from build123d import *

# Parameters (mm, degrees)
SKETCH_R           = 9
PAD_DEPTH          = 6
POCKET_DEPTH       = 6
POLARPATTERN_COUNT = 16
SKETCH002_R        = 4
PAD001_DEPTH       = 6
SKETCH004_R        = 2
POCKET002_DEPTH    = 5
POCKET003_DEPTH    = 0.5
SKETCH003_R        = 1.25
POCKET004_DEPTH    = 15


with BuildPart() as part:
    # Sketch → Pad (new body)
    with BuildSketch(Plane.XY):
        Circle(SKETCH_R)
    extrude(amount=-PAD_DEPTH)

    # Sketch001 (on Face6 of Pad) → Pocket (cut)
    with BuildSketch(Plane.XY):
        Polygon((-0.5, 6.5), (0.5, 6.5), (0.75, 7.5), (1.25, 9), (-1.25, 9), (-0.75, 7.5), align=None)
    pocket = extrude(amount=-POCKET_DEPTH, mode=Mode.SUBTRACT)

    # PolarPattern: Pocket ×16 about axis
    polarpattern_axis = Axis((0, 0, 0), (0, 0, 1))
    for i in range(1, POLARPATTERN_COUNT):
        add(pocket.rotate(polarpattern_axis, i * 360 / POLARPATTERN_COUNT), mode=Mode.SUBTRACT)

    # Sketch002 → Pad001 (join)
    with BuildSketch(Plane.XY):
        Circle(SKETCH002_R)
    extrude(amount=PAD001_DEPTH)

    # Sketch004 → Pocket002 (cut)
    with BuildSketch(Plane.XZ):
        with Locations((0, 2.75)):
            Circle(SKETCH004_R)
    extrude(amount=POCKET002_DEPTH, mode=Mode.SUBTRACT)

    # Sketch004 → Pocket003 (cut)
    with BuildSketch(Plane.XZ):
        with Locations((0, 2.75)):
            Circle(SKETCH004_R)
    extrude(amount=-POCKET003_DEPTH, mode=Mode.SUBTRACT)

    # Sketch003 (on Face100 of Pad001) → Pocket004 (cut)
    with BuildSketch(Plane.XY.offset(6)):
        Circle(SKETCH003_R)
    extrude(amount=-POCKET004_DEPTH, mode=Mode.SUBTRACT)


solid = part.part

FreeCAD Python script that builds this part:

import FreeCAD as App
import Part
import Sketcher

V = App.Vector
Q = App.Units.Quantity

doc = App.newDocument("Part")
params = doc.addObject("Spreadsheet::Sheet", "Params")
for row, (alias, value) in enumerate([
    ("sketch1_diameter", "18 mm"),
    ("pad1_length", "6 mm"),
    ("sketch2_width", "1 mm"),
    ("sketch2_width2", "2.5 mm"),
    ("pocket1_length", "6 mm"),
    ("sketch3_diameter", "8 mm"),
    ("pad2_length", "6 mm"),
    ("sketch4_diameter", "4 mm"),
    ("pocket2_length", "5 mm"),
    ("sketch5_diameter", "4 mm"),
    ("pocket3_length", "0.5 mm"),
    ("sketch6_diameter", "2.5 mm"),
    ("pocket4_length", "15 mm"),
], start=1):
    params.set(f"A{row}", alias)
    params.set(f"B{row}", "=" + value)
    params.setAlias(f"B{row}", alias)

body = doc.addObject("PartDesign::Body", "Body")

sketch1 = doc.addObject("Sketcher::SketchObject", "Sketch")
body.addObject(sketch1)
sketch1.AttachmentSupport = (doc.XY_Plane, [""])
sketch1.MapMode = "FlatFace"
sketch1.addGeometry(Part.Circle(V(0, 0, 0), V(0, 0, 1), 9), False)
sketch1.addConstraint([
    Sketcher.Constraint("Coincident", 0, 3, -1, 1),
    Sketcher.Constraint("Diameter", 0, Q("18 mm")),
])
sketch1.setExpression("Constraints[1]", "Params.sketch1_diameter")
pad1 = doc.addObject("PartDesign::Pad", "Pad")
body.addObject(pad1)
pad1.Profile = sketch1
pad1.setExpression("Length", "Params.pad1_length")
pad1.Reversed = True

sketch2 = doc.addObject("Sketcher::SketchObject", "Sketch001")
body.addObject(sketch2)
sketch2.AttachmentSupport = (doc.XY_Plane, [""])
sketch2.MapMode = "FlatFace"
sketch2.addGeometry([
    Part.LineSegment(V(-0.5, 6.5, 0), V(0.5, 6.5, 0)),
    Part.LineSegment(V(0.5, 6.5, 0), V(0.8, 7.5, 0)),
    Part.LineSegment(V(0.8, 7.5, 0), V(1.2, 9, 0)),
    Part.LineSegment(V(1.2, 9, 0), V(-1.2, 9, 0)),
    Part.LineSegment(V(-1.2, 9, 0), V(-0.8, 7.5, 0)),
    Part.LineSegment(V(-0.8, 7.5, 0), V(-0.5, 6.5, 0)),
], False)
sketch2.addConstraint([
    Sketcher.Constraint("Coincident", 0, 2, 1, 1),
    Sketcher.Constraint("Coincident", 1, 2, 2, 1),
    Sketcher.Constraint("Coincident", 2, 2, 3, 1),
    Sketcher.Constraint("Coincident", 3, 2, 4, 1),
    Sketcher.Constraint("Coincident", 4, 2, 5, 1),
    Sketcher.Constraint("Coincident", 5, 2, 0, 1),
    Sketcher.Constraint("Horizontal", 0),
    Sketcher.Constraint("Horizontal", 3),
    Sketcher.Constraint("Symmetric", 1, 2, 4, 2, -2),
    Sketcher.Constraint("Equal", 2, 4),
    Sketcher.Constraint("Equal", 1, 5),
    Sketcher.Constraint("DistanceX", 0, 1, 0, 2, Q("1 mm")),
    Sketcher.Constraint("DistanceX", 3, 2, 3, 1, Q("2.5 mm")),
    Sketcher.Constraint("DistanceY", -1, 1, 2, 2, Q("9 mm")),
    Sketcher.Constraint("DistanceY", 0, 2, 1, 2, Q("1 mm")),
    Sketcher.Constraint("DistanceX", 3, 2, 1, 2, Q("2 mm")),
    Sketcher.Constraint("DistanceY", -1, 1, 0, 2, Q("6.5 mm")),
])
sketch2.setExpression("Constraints[11]", "Params.sketch2_width")
sketch2.setExpression("Constraints[12]", "Params.sketch2_width2")
pocket1 = doc.addObject("PartDesign::Pocket", "Pocket")
body.addObject(pocket1)
pocket1.Profile = sketch2
pocket1.setExpression("Length", "Params.pocket1_length")
doc.recompute()

polarpattern = doc.addObject("PartDesign::PolarPattern", "PolarPattern")
body.addObject(polarpattern)
polarpattern.Originals = [pocket1]
polarpattern.Axis = (doc.Z_Axis, [""])
polarpattern.Angle = 360
polarpattern.Occurrences = 16
body.Tip = polarpattern

sketch3 = doc.addObject("Sketcher::SketchObject", "Sketch002")
body.addObject(sketch3)
sketch3.AttachmentSupport = (doc.XY_Plane, [""])
sketch3.MapMode = "FlatFace"
sketch3.addGeometry(Part.Circle(V(0, 0, 0), V(0, 0, 1), 4), False)
sketch3.addConstraint([
    Sketcher.Constraint("Coincident", 0, 3, -1, 1),
    Sketcher.Constraint("Diameter", 0, Q("8 mm")),
])
sketch3.setExpression("Constraints[1]", "Params.sketch3_diameter")
pad2 = doc.addObject("PartDesign::Pad", "Pad001")
body.addObject(pad2)
pad2.Profile = sketch3
pad2.setExpression("Length", "Params.pad2_length")

sketch4 = doc.addObject("Sketcher::SketchObject", "Sketch003")
body.addObject(sketch4)
sketch4.AttachmentSupport = (doc.XZ_Plane, [""])
sketch4.MapMode = "FlatFace"
sketch4.addGeometry(Part.Circle(V(0, 2.8, 0), V(0, 0, 1), 2), False)
sketch4.addConstraint([
    Sketcher.Constraint("PointOnObject", 0, 3, -2),
    Sketcher.Constraint("Diameter", 0, Q("4 mm")),
    Sketcher.Constraint("DistanceY", -1, 1, 0, 3, Q("2.75 mm")),
])
sketch4.setExpression("Constraints[1]", "Params.sketch4_diameter")
pocket2 = doc.addObject("PartDesign::Pocket", "Pocket001")
body.addObject(pocket2)
pocket2.Profile = sketch4
pocket2.setExpression("Length", "Params.pocket2_length")
pocket2.Reversed = True

sketch5 = doc.addObject("Sketcher::SketchObject", "Sketch004")
body.addObject(sketch5)
sketch5.AttachmentSupport = (doc.XZ_Plane, [""])
sketch5.MapMode = "FlatFace"
sketch5.addGeometry(Part.Circle(V(0, 2.8, 0), V(0, 0, 1), 2), False)
sketch5.addConstraint([
    Sketcher.Constraint("PointOnObject", 0, 3, -2),
    Sketcher.Constraint("Diameter", 0, Q("4 mm")),
    Sketcher.Constraint("DistanceY", -1, 1, 0, 3, Q("2.75 mm")),
])
sketch5.setExpression("Constraints[1]", "Params.sketch5_diameter")
pocket3 = doc.addObject("PartDesign::Pocket", "Pocket002")
body.addObject(pocket3)
pocket3.Profile = sketch5
pocket3.setExpression("Length", "Params.pocket3_length")

sketch6 = doc.addObject("Sketcher::SketchObject", "Sketch005")
body.addObject(sketch6)
sketch6.AttachmentSupport = (doc.XY_Plane, [""])
sketch6.MapMode = "FlatFace"
sketch6.AttachmentOffset = App.Placement(V(0, 0, 6), App.Rotation())
sketch6.addGeometry(Part.Circle(V(0, 0, 0), V(0, 0, 1), 1.2), False)
sketch6.addConstraint([
    Sketcher.Constraint("Coincident", 0, 3, -1, 1),
    Sketcher.Constraint("Diameter", 0, Q("2.5 mm")),
])
sketch6.setExpression("Constraints[1]", "Params.sketch6_diameter")
pocket4 = doc.addObject("PartDesign::Pocket", "Pocket003")
body.addObject(pocket4)
pocket4.Profile = sketch6
pocket4.setExpression("Length", "Params.pocket4_length")

doc.recompute()
